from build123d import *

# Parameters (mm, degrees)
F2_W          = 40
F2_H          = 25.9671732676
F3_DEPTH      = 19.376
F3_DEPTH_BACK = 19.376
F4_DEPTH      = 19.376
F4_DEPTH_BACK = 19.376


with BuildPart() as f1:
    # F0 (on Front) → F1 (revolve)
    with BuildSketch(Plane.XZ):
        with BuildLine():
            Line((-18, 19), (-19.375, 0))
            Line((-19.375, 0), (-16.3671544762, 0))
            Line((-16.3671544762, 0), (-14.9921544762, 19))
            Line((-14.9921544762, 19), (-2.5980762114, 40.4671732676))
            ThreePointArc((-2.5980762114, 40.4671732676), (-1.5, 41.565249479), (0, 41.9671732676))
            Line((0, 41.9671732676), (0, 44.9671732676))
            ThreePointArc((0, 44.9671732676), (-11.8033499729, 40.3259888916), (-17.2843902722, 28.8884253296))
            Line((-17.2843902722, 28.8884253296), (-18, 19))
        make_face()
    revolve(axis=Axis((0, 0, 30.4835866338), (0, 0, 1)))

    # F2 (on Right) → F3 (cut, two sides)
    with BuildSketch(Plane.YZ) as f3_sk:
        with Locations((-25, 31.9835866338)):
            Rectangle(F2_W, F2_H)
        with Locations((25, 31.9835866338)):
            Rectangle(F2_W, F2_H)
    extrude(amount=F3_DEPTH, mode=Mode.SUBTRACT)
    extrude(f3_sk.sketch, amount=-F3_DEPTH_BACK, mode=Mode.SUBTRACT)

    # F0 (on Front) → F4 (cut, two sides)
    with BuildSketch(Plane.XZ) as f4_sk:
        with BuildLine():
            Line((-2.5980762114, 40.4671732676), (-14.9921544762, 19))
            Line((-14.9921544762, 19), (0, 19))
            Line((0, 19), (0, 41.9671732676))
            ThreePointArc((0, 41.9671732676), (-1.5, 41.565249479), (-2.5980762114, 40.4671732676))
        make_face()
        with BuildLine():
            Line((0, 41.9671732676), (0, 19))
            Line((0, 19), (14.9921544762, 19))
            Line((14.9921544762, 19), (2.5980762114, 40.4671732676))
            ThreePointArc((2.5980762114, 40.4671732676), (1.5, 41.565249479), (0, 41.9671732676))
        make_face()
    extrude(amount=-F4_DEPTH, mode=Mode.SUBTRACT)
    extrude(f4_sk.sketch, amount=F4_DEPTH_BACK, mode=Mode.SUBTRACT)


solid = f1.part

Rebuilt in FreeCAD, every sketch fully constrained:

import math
import FreeCAD as App
import Part
import Sketcher
Q = App.Units.Quantity

doc = App.newDocument("Part")
body = doc.addObject("PartDesign::Body", "Body")

# Sketch on XZ plane
sketch1 = doc.addObject("Sketcher::SketchObject", "Sketch")
body.addObject(sketch1)
sketch1.AttachmentSupport = (doc.XZ_Plane, [""])
sketch1.MapMode = "FlatFace"
sketch1.addGeometry([
    Part.LineSegment(App.Vector(-19.4, 0, 0), App.Vector(-16.4, 0, 0)),  # 0
    Part.LineSegment(App.Vector(-16.4, 0, 0), App.Vector(-15, 19, 0)),  # 1
    Part.LineSegment(App.Vector(-15, 19, 0), App.Vector(-2.6, 40.5, 0)),  # 2
    Part.ArcOfCircle(Part.Circle(App.Vector(0, 39, 0), App.Vector(0, 0, 1), 3), math.radians(90), math.radians(150)),  # 3
    Part.LineSegment(App.Vector(0, 42, 0), App.Vector(0, 45, 0)),  # 4
    Part.ArcOfCircle(Part.Circle(App.Vector(0, 27.6, 0), App.Vector(0, 0, 1), 17.3), math.radians(90), math.radians(176)),  # 5
    Part.LineSegment(App.Vector(-17.3, 28.9, 0), App.Vector(-19.4, 0, 0)),  # 6
], False)
sketch1.addConstraint([
    Sketcher.Constraint("Coincident", 0, 2, 1, 1),
    Sketcher.Constraint("Coincident", 1, 2, 2, 1),
    Sketcher.Constraint("Tangent", 2, 2, 3, 2),
    Sketcher.Constraint("Coincident", 3, 1, 4, 1),
    Sketcher.Constraint("Coincident", 4, 2, 5, 1),
    Sketcher.Constraint("Tangent", 5, 2, 6, 1),
    Sketcher.Constraint("Coincident", 6, 2, 0, 1),
    Sketcher.Constraint("Horizontal", 0),
    Sketcher.Constraint("Vertical", 4),
    Sketcher.Constraint("PointOnObject", 3, 3, -2),
    Sketcher.Constraint("PointOnObject", 5, 3, -2),
    Sketcher.Constraint("PointOnObject", 0, 2, -1),
    Sketcher.Constraint("PointOnObject", 3, 1, -2),
    Sketcher.Constraint("Parallel", 1, 6),
    Sketcher.Constraint("Radius", 3, 3.0),
    Sketcher.Constraint("DistanceY", 4, 1, 4, 2, 3.0),
    Sketcher.Constraint("Angle", 2, Q("60 deg")),
    Sketcher.Constraint("DistanceY", -1, 1, 1, 2, 19.0),
    Sketcher.Constraint("Radius", 5, 17.329592),
    Sketcher.Constraint("DistanceX", 6, 2, -1, 1, 19.375),
    Sketcher.Constraint("DistanceX", 0, 2, 1, 2, 1.375),
])
revolution = doc.addObject("PartDesign::Revolution", "Revolution")
body.addObject(revolution)
revolution.Profile = sketch1
revolution.ReferenceAxis = (sketch1, ["V_Axis"])
revolution.Angle = 360

# Sketch on YZ plane
sketch2 = doc.addObject("Sketcher::SketchObject", "Sketch001")
body.addObject(sketch2)
sketch2.AttachmentSupport = (doc.YZ_Plane, [""])
sketch2.MapMode = "FlatFace"
sketch2.addGeometry([
    Part.LineSegment(App.Vector(-45, 45, 0), App.Vector(-45, 19, 0)),  # 0
    Part.LineSegment(App.Vector(-45, 19, 0), App.Vector(-5, 19, 0)),  # 1
    Part.LineSegment(App.Vector(-5, 19, 0), App.Vector(-5, 45, 0)),  # 2
    Part.LineSegment(App.Vector(-5, 45, 0), App.Vector(-45, 45, 0)),  # 3
    Part.LineSegment(App.Vector(5, 45, 0), App.Vector(5, 19, 0)),  # 4
    Part.LineSegment(App.Vector(5, 19, 0), App.Vector(45, 19, 0)),  # 5
    Part.LineSegment(App.Vector(45, 19, 0), App.Vector(45, 45, 0)),  # 6
    Part.LineSegment(App.Vector(45, 45, 0), App.Vector(5, 45, 0)),  # 7
], False)
sketch2.addConstraint([
    Sketcher.Constraint("Coincident", 0, 2, 1, 1),
    Sketcher.Constraint("Coincident", 1, 2, 2, 1),
    Sketcher.Constraint("Coincident", 2, 2, 3, 1),
    Sketcher.Constraint("Coincident", 3, 2, 0, 1),
    Sketcher.Constraint("Coincident", 4, 2, 5, 1),
    Sketcher.Constraint("Coincident", 5, 2, 6, 1),
    Sketcher.Constraint("Coincident", 6, 2, 7, 1),
    Sketcher.Constraint("Coincident", 7, 2, 4, 1),
    Sketcher.Constraint("Vertical", 0),
    Sketcher.Constraint("Horizontal", 1),
    Sketcher.Constraint("Vertical", 2),
    Sketcher.Constraint("Horizontal", 3),
    Sketcher.Constraint("Vertical", 4),
    Sketcher.Constraint("Horizontal", 5),
    Sketcher.Constraint("Vertical", 6),
    Sketcher.Constraint("Horizontal", 7),
    Sketcher.Constraint("Symmetric", 1, 2, 4, 2, -2),
    Sketcher.Constraint("Symmetric", 3, 2, 6, 2, -2),
    Sketcher.Constraint("DistanceX", 1, 1, 1, 2, 40.0),
    Sketcher.Constraint("DistanceX", 0, 2, -1, 1, 45.0),
    Sketcher.Constraint("DistanceY", -1, 1, 0, 2, 19.0),
    Sketcher.Constraint("DistanceY", 0, 2, 0, 1, 25.967173),
])
pocket1 = doc.addObject("PartDesign::Pocket", "Pocket")
body.addObject(pocket1)
pocket1.Profile = sketch2
pocket1.Type = "ThroughAll"
pocket1.Midplane = True

# Sketch on XZ plane
sketch3 = doc.addObject("Sketcher::SketchObject", "Sketch002")
body.addObject(sketch3)
sketch3.AttachmentSupport = (doc.XZ_Plane, [""])
sketch3.MapMode = "FlatFace"
sketch3.addGeometry([
    Part.LineSegment(App.Vector(-2.6, 40.5, 0), App.Vector(-15, 19, 0)),  # 0
    Part.LineSegment(App.Vector(-15, 19, 0), App.Vector(15, 19, 0)),  # 1
    Part.LineSegment(App.Vector(15, 19, 0), App.Vector(2.6, 40.5, 0)),  # 2
    Part.ArcOfCircle(Part.Circle(App.Vector(0, 39, 0), App.Vector(0, 0, 1), 3), math.radians(30), math.radians(90)),  # 3
    Part.ArcOfCircle(Part.Circle(App.Vector(0, 39, 0), App.Vector(0, 0, 1), 3), math.radians(90), math.radians(150)),  # 4
], False)
sketch3.addConstraint([
    Sketcher.Constraint("Coincident", 0, 2, 1, 1),
    Sketcher.Constraint("Coincident", 1, 2, 2, 1),
    Sketcher.Constraint("Tangent", 2, 2, 3, 1),
    Sketcher.Constraint("Tangent", 3, 2, 4, 1),
    Sketcher.Constraint("Tangent", 4, 2, 0, 1),
    Sketcher.Constraint("Horizontal", 1),
    Sketcher.Constraint("Equal", 3, 4),
    Sketcher.Constraint("Symmetric", 2, 2, 4, 2, -2),
    Sketcher.Constraint("PointOnObject", 3, 2, -2),
    Sketcher.Constraint("Radius", 3, 3.0),
    Sketcher.Constraint("Angle", 0, Q("-120 deg")),
    Sketcher.Constraint("DistanceY", -1, 1, 0, 2, 19.0),
    Sketcher.Constraint("DistanceX", 1, 1, 1, 2, 29.984309),
])
pocket2 = doc.addObject("PartDesign::Pocket", "Pocket001")
body.addObject(pocket2)
pocket2.Profile = sketch3
pocket2.Type = "ThroughAll"
pocket2.Midplane = True

doc.recompute()
